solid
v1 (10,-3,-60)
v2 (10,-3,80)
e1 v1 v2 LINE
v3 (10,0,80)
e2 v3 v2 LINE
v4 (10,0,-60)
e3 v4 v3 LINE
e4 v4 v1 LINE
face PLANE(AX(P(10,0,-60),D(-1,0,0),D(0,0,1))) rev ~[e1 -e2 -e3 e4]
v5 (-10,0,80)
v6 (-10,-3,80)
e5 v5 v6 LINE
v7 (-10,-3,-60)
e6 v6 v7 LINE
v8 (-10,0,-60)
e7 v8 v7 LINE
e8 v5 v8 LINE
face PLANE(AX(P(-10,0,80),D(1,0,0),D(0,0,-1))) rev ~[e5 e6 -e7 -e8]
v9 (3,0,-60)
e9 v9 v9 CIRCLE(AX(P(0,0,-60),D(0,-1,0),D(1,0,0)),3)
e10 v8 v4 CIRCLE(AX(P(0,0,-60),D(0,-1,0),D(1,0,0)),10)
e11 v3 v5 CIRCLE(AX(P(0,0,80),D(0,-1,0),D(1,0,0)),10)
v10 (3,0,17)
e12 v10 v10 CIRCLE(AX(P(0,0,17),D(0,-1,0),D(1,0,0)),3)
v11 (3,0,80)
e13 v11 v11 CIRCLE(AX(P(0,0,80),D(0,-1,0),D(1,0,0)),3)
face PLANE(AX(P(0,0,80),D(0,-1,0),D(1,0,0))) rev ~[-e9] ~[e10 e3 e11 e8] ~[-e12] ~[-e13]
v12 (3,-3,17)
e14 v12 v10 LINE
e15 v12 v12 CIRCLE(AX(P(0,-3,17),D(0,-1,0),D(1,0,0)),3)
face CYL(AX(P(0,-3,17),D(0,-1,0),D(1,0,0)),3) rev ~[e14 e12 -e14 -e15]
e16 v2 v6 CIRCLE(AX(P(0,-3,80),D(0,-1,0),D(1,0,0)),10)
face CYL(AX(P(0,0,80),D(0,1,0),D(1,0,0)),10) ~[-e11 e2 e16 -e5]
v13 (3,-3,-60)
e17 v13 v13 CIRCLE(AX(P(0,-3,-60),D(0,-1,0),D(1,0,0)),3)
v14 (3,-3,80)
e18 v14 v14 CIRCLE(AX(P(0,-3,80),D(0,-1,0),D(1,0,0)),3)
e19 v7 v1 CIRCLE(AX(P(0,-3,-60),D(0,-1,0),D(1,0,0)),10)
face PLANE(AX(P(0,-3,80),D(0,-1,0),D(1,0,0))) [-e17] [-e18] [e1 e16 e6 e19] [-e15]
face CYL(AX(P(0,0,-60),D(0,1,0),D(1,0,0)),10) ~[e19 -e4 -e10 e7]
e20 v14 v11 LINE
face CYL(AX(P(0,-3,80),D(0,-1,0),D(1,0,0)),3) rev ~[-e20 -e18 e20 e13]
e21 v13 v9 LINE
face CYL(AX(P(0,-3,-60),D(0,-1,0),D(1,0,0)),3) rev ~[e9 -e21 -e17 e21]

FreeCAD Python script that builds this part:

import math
import FreeCAD as App
import Part
import Sketcher

doc = App.newDocument("Part")
body = doc.addObject("PartDesign::Body", "Body")

sketch1 = body.newObject("Sketcher::SketchObject", "Sketch")
sketch1.AttachmentSupport = (doc.getObject("XZ_Plane"), [""])
sketch1.MapMode = "FlatFace"
sketch1.addGeometry([
    Part.ArcOfCircle(Part.Circle(App.Vector(0, 80, 0), App.Vector(0, 0, 1), 10), math.radians(0), math.radians(180)),
    Part.LineSegment(App.Vector(-10, 80, 0), App.Vector(-10, -60, 0)),
    Part.ArcOfCircle(Part.Circle(App.Vector(0, -60, 0), App.Vector(0, 0, 1), 10), math.radians(180), math.radians(360)),
    Part.LineSegment(App.Vector(10, -60, 0), App.Vector(10, 80, 0)),
], False)
sketch1.addConstraint([
    Sketcher.Constraint("Tangent", 0, 2, 1, 1),
    Sketcher.Constraint("Tangent", 1, 2, 2, 1),
    Sketcher.Constraint("Tangent", 2, 2, 3, 1),
    Sketcher.Constraint("Tangent", 3, 2, 0, 1),
    Sketcher.Constraint("Vertical", 1),
    Sketcher.Constraint("Vertical", 3),
    Sketcher.Constraint("PointOnObject", 0, 3, -2),
    Sketcher.Constraint("Radius", 0, 10.0),
    Sketcher.Constraint("DistanceY", 1, 2, 1, 1, 140.0),
    Sketcher.Constraint("DistanceY", -1, 1, 0, 3, 80.0),
])
pad1 = body.newObject("PartDesign::Pad", "Pad")
pad1.Profile = sketch1
pad1.Length = 3

sketch2 = body.newObject("Sketcher::SketchObject", "Sketch001")
sketch2.AttachmentSupport = (doc.getObject("XZ_Plane"), [""])
sketch2.MapMode = "FlatFace"
sketch2.AttachmentOffset = App.Placement(App.Vector(0, 0, 3), App.Rotation())
sketch2.addGeometry([
    Part.Circle(App.Vector(0, 80, 0), App.Vector(0, 0, 1), 3),
    Part.Circle(App.Vector(0, -60, 0), App.Vector(0, 0, 1), 3),
], False)
sketch2.addConstraint([
    Sketcher.Constraint("Equal", 0, 1),
    Sketcher.Constraint("PointOnObject", 0, 3, -2),
    Sketcher.Constraint("PointOnObject", 1, 3, -2),
    Sketcher.Constraint("Diameter", 0, 6.0),
    Sketcher.Constraint("DistanceY", -1, 1, 0, 3, 80.0),
    Sketcher.Constraint("DistanceY", 1, 3, -1, 1, 60.0),
])
pocket1 = body.newObject("PartDesign::Pocket", "Pocket")
pocket1.Profile = sketch2
pocket1.Length = 25.4

sketch3 = body.newObject("Sketcher::SketchObject", "Sketch002")
sketch3.AttachmentSupport = (doc.getObject("XZ_Plane"), [""])
sketch3.MapMode = "FlatFace"
sketch3.AttachmentOffset = App.Placement(App.Vector(0, 0, 3), App.Rotation())
sketch3.addGeometry(Part.Circle(App.Vector(0, 17, 0), App.Vector(0, 0, 1), 3), False)
sketch3.addConstraint([
    Sketcher.Constraint("PointOnObject", 0, 3, -2),
    Sketcher.Constraint("Diameter", 0, 6.0),
    Sketcher.Constraint("DistanceY", -1, 1, 0, 3, 17.0),
])
pocket2 = body.newObject("PartDesign::Pocket", "Pocket001")
pocket2.Profile = sketch3
pocket2.Length = 25

doc.recompute()
